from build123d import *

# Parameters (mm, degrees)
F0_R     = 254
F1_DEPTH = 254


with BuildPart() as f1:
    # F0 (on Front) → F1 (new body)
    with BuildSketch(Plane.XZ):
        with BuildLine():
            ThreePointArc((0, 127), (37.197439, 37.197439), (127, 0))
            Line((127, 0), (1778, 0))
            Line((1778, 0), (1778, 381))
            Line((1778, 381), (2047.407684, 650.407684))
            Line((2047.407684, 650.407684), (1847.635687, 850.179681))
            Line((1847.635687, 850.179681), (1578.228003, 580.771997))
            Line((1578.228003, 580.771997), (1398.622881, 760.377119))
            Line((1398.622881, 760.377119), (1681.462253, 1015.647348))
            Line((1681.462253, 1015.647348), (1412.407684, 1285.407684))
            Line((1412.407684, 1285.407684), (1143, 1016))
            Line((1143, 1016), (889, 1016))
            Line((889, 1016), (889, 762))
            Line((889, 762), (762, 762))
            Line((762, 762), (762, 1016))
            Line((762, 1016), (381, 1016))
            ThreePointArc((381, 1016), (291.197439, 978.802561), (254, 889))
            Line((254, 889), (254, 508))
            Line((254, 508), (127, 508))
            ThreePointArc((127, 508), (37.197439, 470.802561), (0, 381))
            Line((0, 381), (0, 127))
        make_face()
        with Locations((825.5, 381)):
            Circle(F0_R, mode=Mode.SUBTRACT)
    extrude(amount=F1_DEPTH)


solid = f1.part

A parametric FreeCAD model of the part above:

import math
import FreeCAD as App
import Part
import Sketcher
Q = App.Units.Quantity

doc = App.newDocument("Part")
body = doc.addObject("PartDesign::Body", "Body")

sketch1 = body.newObject("Sketcher::SketchObject", "Sketch")
sketch1.AttachmentSupport = (doc.getObject("XZ_Plane"), [""])
sketch1.MapMode = "FlatFace"
sketch1.addGeometry([
    Part.ArcOfCircle(Part.Circle(App.Vector(127, 127, 0), App.Vector(0, 0, 1), 127), math.radians(-180), math.radians(-90)),
    Part.LineSegment(App.Vector(127, 0, 0), App.Vector(1778, 0, 0)),
    Part.LineSegment(App.Vector(1778, 0, 0), App.Vector(1778, 381, 0)),
    Part.LineSegment(App.Vector(1778, 381, 0), App.Vector(2047, 650, 0)),
    Part.LineSegment(App.Vector(2047, 650, 0), App.Vector(1848, 850, 0)),
    Part.LineSegment(App.Vector(1848, 850, 0), App.Vector(1578, 581, 0)),
    Part.LineSegment(App.Vector(1578, 581, 0), App.Vector(1399, 760, 0)),
    Part.LineSegment(App.Vector(1399, 760, 0), App.Vector(1681, 1016, 0)),
    Part.LineSegment(App.Vector(1681, 1016, 0), App.Vector(1412, 1285, 0)),
    Part.LineSegment(App.Vector(1412, 1285, 0), App.Vector(1143, 1016, 0)),
    Part.LineSegment(App.Vector(1143, 1016, 0), App.Vector(889, 1016, 0)),
    Part.LineSegment(App.Vector(889, 1016, 0), App.Vector(889, 762, 0)),
    Part.LineSegment(App.Vector(889, 762, 0), App.Vector(762, 762, 0)),
    Part.LineSegment(App.Vector(762, 762, 0), App.Vector(762, 1016, 0)),
    Part.LineSegment(App.Vector(762, 1016, 0), App.Vector(381, 1016, 0)),
    Part.ArcOfCircle(Part.Circle(App.Vector(381, 889, 0), App.Vector(0, 0, 1), 127), math.radians(90), math.radians(180)),
    Part.LineSegment(App.Vector(254, 889, 0), App.Vector(254, 508, 0)),
    Part.LineSegment(App.Vector(254, 508, 0), App.Vector(127, 508, 0)),
    Part.ArcOfCircle(Part.Circle(App.Vector(127, 381, 0), App.Vector(0, 0, 1), 127), math.radians(90), math.radians(180)),
    Part.LineSegment(App.Vector(0, 381, 0), App.Vector(0, 127, 0)),
    Part.Circle(App.Vector(826, 381, 0), App.Vector(0, 0, 1), 254),
], False)
sketch1.addConstraint([
    Sketcher.Constraint("Tangent", 0, 2, 1, 1),
    Sketcher.Constraint("Coincident", 1, 2, 2, 1),
    Sketcher.Constraint("Coincident", 2, 2, 3, 1),
    Sketcher.Constraint("Coincident", 3, 2, 4, 1),
    Sketcher.Constraint("Coincident", 4, 2, 5, 1),
    Sketcher.Constraint("Coincident", 5, 2, 6, 1),
    Sketcher.Constraint("Coincident", 6, 2, 7, 1),
    Sketcher.Constraint("Coincident", 7, 2, 8, 1),
    Sketcher.Constraint("Coincident", 8, 2, 9, 1),
    Sketcher.Constraint("Coincident", 9, 2, 10, 1),
    Sketcher.Constraint("Coincident", 10, 2, 11, 1),
    Sketcher.Constraint("Coincident", 11, 2, 12, 1),
    Sketcher.Constraint("Coincident", 12, 2, 13, 1),
    Sketcher.Constraint("Coincident", 13, 2, 14, 1),
    Sketcher.Constraint("Tangent", 14, 2, 15, 1),
    Sketcher.Constraint("Tangent", 15, 2, 16, 1),
    Sketcher.Constraint("Coincident", 16, 2, 17, 1),
    Sketcher.Constraint("Tangent", 17, 2, 18, 1),
    Sketcher.Constraint("Tangent", 18, 2, 19, 1),
    Sketcher.Constraint("Tangent", 19, 2, 0, 1),
    Sketcher.Constraint("Horizontal", 1),
    Sketcher.Constraint("Vertical", 2),
    Sketcher.Constraint("Horizontal", 10),
    Sketcher.Constraint("Vertical", 11),
    Sketcher.Constraint("Horizontal", 12),
    Sketcher.Constraint("Vertical", 13),
    Sketcher.Constraint("Horizontal", 14),
    Sketcher.Constraint("Vertical", 16),
    Sketcher.Constraint("Horizontal", 17),
    Sketcher.Constraint("Vertical", 19),
    Sketcher.Constraint("Equal", 0, 15),
    Sketcher.Constraint("Equal", 15, 18),
    Sketcher.Constraint("PointOnObject", 0, 2, -1),
    Sketcher.Constraint("PointOnObject", 18, 2, -2),
    Sketcher.Constraint("Perpendicular", 3, 4),
    Sketcher.Constraint("Perpendicular", 4, 5),
    Sketcher.Constraint("Perpendicular", 5, 6),
    Sketcher.Constraint("Perpendicular", 6, 9),
    Sketcher.Constraint("Horizontal", 18, 3, 20, 3),
    Sketcher.Constraint("Horizontal", 20, 3, 2, 2),
    Sketcher.Constraint("Horizontal", 10, 2, 13, 2),
    Sketcher.Constraint("Equal", 12, 17),
    Sketcher.Constraint("Equal", 14, 2),
    Sketcher.Constraint("Equal", 10, 11),
    Sketcher.Constraint("Equal", 2, 16),
    Sketcher.Constraint("Equal", 13, 19),
    Sketcher.Constraint("Equal", 3, 5),
    Sketcher.Constraint("Equal", 5, 7),
    Sketcher.Constraint("Equal", 7, 8),
    Sketcher.Constraint("Equal", 8, 9),
    Sketcher.Constraint("Diameter", 20, Q("20 in")),
    Sketcher.Constraint("Radius", 0, Q("5 in")),
    Sketcher.Constraint("DistanceX", 1, 1, 1, 2, Q("65 in")),
    Sketcher.Constraint("DistanceX", 10, 2, 10, 1, Q("10 in")),
    Sketcher.Constraint("DistanceX", 12, 2, 12, 1, Q("5 in")),
    Sketcher.Constraint("Distance", 3, Q("15 in")),
    Sketcher.Constraint("Distance", 6, Q("10 in")),
    Sketcher.Constraint("Angle", 3, Q("45 deg")),
    Sketcher.Constraint("DistanceX", -1, 1, 20, 3, Q("32.5 in")),
    Sketcher.Constraint("DistanceY", -1, 1, 4, 2, Q("850.179681 mm")),
])
pad1 = body.newObject("PartDesign::Pad", "Pad")
pad1.Profile = sketch1
pad1.Length = Q("10 in")

doc.recompute()
